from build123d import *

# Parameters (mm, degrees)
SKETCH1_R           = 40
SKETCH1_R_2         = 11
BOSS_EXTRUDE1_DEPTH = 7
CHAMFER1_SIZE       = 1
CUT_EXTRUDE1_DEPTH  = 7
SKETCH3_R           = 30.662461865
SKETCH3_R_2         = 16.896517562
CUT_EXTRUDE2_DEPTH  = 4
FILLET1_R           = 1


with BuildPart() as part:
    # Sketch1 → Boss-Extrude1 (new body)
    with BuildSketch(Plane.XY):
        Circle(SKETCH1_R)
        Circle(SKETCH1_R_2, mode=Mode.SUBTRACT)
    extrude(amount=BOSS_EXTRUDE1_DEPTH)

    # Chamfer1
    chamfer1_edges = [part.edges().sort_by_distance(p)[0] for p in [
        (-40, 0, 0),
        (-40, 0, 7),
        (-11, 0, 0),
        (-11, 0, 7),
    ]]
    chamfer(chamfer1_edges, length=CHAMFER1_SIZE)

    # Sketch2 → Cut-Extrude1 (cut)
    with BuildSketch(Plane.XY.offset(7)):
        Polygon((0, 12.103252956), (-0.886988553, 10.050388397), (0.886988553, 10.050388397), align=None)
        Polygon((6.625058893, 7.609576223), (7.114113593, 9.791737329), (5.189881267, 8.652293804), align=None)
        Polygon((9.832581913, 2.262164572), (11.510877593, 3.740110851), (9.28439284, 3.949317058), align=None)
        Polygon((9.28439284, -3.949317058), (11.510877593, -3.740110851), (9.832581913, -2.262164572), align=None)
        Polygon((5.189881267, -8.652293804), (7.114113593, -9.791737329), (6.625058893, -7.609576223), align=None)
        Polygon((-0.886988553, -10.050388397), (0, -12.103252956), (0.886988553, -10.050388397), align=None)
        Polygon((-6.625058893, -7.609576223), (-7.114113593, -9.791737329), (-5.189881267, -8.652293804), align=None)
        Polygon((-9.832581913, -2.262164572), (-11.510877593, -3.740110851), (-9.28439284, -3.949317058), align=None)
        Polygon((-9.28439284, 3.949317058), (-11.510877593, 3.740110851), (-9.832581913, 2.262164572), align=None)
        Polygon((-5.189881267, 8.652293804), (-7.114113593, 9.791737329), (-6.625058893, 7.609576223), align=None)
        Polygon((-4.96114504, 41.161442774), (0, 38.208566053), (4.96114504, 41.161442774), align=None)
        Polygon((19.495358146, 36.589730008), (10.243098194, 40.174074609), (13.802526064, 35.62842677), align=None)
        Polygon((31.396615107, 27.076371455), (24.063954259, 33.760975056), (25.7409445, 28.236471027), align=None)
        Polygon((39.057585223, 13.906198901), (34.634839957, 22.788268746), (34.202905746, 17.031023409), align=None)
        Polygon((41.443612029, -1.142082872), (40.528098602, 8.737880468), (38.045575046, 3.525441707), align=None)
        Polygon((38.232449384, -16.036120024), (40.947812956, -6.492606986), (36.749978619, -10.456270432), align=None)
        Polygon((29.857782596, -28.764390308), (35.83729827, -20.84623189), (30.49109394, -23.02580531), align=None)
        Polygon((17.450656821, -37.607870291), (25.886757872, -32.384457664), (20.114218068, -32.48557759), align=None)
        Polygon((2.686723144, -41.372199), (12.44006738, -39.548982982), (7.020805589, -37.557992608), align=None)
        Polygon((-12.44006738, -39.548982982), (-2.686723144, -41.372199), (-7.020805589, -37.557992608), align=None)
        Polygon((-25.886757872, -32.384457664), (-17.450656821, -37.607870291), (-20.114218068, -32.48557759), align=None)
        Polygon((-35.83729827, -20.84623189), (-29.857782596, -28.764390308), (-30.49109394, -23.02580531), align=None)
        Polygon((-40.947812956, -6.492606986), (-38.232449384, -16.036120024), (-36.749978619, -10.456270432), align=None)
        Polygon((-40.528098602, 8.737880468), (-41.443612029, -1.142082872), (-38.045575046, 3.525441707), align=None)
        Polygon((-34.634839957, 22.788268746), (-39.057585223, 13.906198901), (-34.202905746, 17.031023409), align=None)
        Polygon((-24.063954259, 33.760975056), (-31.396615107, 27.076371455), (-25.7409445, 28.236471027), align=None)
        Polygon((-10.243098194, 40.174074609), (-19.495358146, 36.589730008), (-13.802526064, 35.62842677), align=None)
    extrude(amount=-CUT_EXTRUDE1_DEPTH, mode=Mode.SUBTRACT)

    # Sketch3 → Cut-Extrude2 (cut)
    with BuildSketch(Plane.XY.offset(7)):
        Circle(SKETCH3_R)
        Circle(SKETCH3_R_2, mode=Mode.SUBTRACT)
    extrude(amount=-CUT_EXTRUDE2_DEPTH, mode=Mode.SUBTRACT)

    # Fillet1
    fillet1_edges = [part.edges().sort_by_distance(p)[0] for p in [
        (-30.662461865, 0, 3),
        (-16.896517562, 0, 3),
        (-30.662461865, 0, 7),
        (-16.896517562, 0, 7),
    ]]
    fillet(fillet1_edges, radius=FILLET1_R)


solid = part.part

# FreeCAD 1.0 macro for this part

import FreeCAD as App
import Part
import Sketcher
Q = App.Units.Quantity


def edges_at(feature, points):
    """Names of the edges that pass closest to the given points."""
    edges = feature.Shape.Edges
    near = lambda p: min(range(len(edges)), key=lambda i: edges[i].distToShape(Part.Vertex(*p))[0])
    return sorted({f"Edge{near(p) + 1}" for p in points})

doc = App.newDocument("Part")
body = doc.addObject("PartDesign::Body", "Body")

sketch1 = doc.addObject("Sketcher::SketchObject", "Sketch")
body.addObject(sketch1)
sketch1.AttachmentSupport = (doc.XY_Plane, [""])
sketch1.MapMode = "FlatFace"
sketch1.addGeometry(Part.Circle(App.Vector(0, 0, 0), App.Vector(0, 0, 1), 40), False)
sketch1.addGeometry(Part.Circle(App.Vector(0, 0, 0), App.Vector(0, 0, 1), 11), False)
sketch1.addConstraint(Sketcher.Constraint("Coincident", 0, 3, -1, 1))
sketch1.addConstraint(Sketcher.Constraint("Coincident", 1, 3, -1, 1))
sketch1.addConstraint(Sketcher.Constraint("Diameter", 0, 80.0))
sketch1.addConstraint(Sketcher.Constraint("Diameter", 1, 22.0))
pad1 = doc.addObject("PartDesign::Pad", "Pad")
body.addObject(pad1)
pad1.Profile = sketch1
pad1.Length = 7
doc.recompute()

chamfer = doc.addObject("PartDesign::Chamfer", "Chamfer")
body.addObject(chamfer)
chamfer.Base = (pad1, edges_at(pad1, [
    (-40, 0, 0),
    (-40, 0, 7),
    (-11, 0, 0),
    (-11, 0, 7),
]))
chamfer.Size = 1

sketch2 = doc.addObject("Sketcher::SketchObject", "Sketch001")
body.addObject(sketch2)
sketch2.AttachmentSupport = (doc.XY_Plane, [""])
sketch2.MapMode = "FlatFace"
sketch2.AttachmentOffset = App.Placement(App.Vector(0, 0, 7), App.Rotation())
sketch2.addGeometry(Part.LineSegment(App.Vector(0, 12.103253, 0), App.Vector(-0.886989, 10.050388, 0)), False)
sketch2.addGeometry(Part.LineSegment(App.Vector(-0.886989, 10.050388, 0), App.Vector(0.886989, 10.050388, 0)), False)
sketch2.addGeometry(Part.LineSegment(App.Vector(0.886989, 10.050388, 0), App.Vector(0, 12.103253, 0)), False)
sketch2.addGeometry(Part.LineSegment(App.Vector(6.625059, 7.609576, 0), App.Vector(7.114114, 9.791737, 0)), False)
sketch2.addGeometry(Part.LineSegment(App.Vector(7.114114, 9.791737, 0), App.Vector(5.189881, 8.652294, 0)), False)
sketch2.addGeometry(Part.LineSegment(App.Vector(5.189881, 8.652294, 0), App.Vector(6.625059, 7.609576, 0)), False)
sketch2.addGeometry(Part.LineSegment(App.Vector(9.832582, 2.262165, 0), App.Vector(11.510878, 3.740111, 0)), False)
sketch2.addGeometry(Part.LineSegment(App.Vector(11.510878, 3.740111, 0), App.Vector(9.284393, 3.949317, 0)), False)
sketch2.addGeometry(Part.LineSegment(App.Vector(9.284393, 3.949317, 0), App.Vector(9.832582, 2.262165, 0)), False)
sketch2.addGeometry(Part.LineSegment(App.Vector(9.284393, -3.949317, 0), App.Vector(11.510878, -3.740111, 0)), False)
sketch2.addGeometry(Part.LineSegment(App.Vector(11.510878, -3.740111, 0), App.Vector(9.832582, -2.262165, 0)), False)
sketch2.addGeometry(Part.LineSegment(App.Vector(9.832582, -2.262165, 0), App.Vector(9.284393, -3.949317, 0)), False)
sketch2.addGeometry(Part.LineSegment(App.Vector(5.189881, -8.652294, 0), App.Vector(7.114114, -9.791737, 0)), False)
sketch2.addGeometry(Part.LineSegment(App.Vector(7.114114, -9.791737, 0), App.Vector(6.625059, -7.609576, 0)), False)
sketch2.addGeometry(Part.LineSegment(App.Vector(6.625059, -7.609576, 0), App.Vector(5.189881, -8.652294, 0)), False)
sketch2.addGeometry(Part.LineSegment(App.Vector(-0.886989, -10.050388, 0), App.Vector(0, -12.103253, 0)), False)
sketch2.addGeometry(Part.LineSegment(App.Vector(0, -12.103253, 0), App.Vector(0.886989, -10.050388, 0)), False)
sketch2.addGeometry(Part.LineSegment(App.Vector(0.886989, -10.050388, 0), App.Vector(-0.886989, -10.050388, 0)), False)
sketch2.addGeometry(Part.LineSegment(App.Vector(-6.625059, -7.609576, 0), App.Vector(-7.114114, -9.791737, 0)), False)
sketch2.addGeometry(Part.LineSegment(App.Vector(-7.114114, -9.791737, 0), App.Vector(-5.189881, -8.652294, 0)), False)
sketch2.addGeometry(Part.LineSegment(App.Vector(-5.189881, -8.652294, 0), App.Vector(-6.625059, -7.609576, 0)), False)
sketch2.addGeometry(Part.LineSegment(App.Vector(-9.832582, -2.262165, 0), App.Vector(-11.510878, -3.740111, 0)), False)
sketch2.addGeometry(Part.LineSegment(App.Vector(-11.510878, -3.740111, 0), App.Vector(-9.284393, -3.949317, 0)), False)
sketch2.addGeometry(Part.LineSegment(App.Vector(-9.284393, -3.949317, 0), App.Vector(-9.832582, -2.262165, 0)), False)
sketch2.addGeometry(Part.LineSegment(App.Vector(-9.284393, 3.949317, 0), App.Vector(-11.510878, 3.740111, 0)), False)
sketch2.addGeometry(Part.LineSegment(App.Vector(-11.510878, 3.740111, 0), App.Vector(-9.832582, 2.262165, 0)), False)
sketch2.addGeometry(Part.LineSegment(App.Vector(-9.832582, 2.262165, 0), App.Vector(-9.284393, 3.949317, 0)), False)
sketch2.addGeometry(Part.LineSegment(App.Vector(-5.189881, 8.652294, 0), App.Vector(-7.114114, 9.791737, 0)), False)
sketch2.addGeometry(Part.LineSegment(App.Vector(-7.114114, 9.791737, 0), App.Vector(-6.625059, 7.609576, 0)), False)
sketch2.addGeometry(Part.LineSegment(App.Vector(-6.625059, 7.609576, 0), App.Vector(-5.189881, 8.652294, 0)), False)
sketch2.addGeometry(Part.LineSegment(App.Vector(-4.961145, 41.161443, 0), App.Vector(0, 38.208566, 0)), False)
sketch2.addGeometry(Part.LineSegment(App.Vector(0, 38.208566, 0), App.Vector(4.961145, 41.161443, 0)), False)
sketch2.addGeometry(Part.LineSegment(App.Vector(4.961145, 41.161443, 0), App.Vector(-4.961145, 41.161443, 0)), False)
sketch2.addGeometry(Part.LineSegment(App.Vector(19.495358, 36.58973, 0), App.Vector(10.243098, 40.174075, 0)), False)
sketch2.addGeometry(Part.LineSegment(App.Vector(10.243098, 40.174075, 0), App.Vector(13.802526, 35.628427, 0)), False)
sketch2.addGeometry(Part.LineSegment(App.Vector(13.802526, 35.628427, 0), App.Vector(19.495358, 36.58973, 0)), False)
sketch2.addGeometry(Part.LineSegment(App.Vector(31.396615, 27.076371, 0), App.Vector(24.063954, 33.760975, 0)), False)
sketch2.addGeometry(Part.LineSegment(App.Vector(24.063954, 33.760975, 0), App.Vector(25.740945, 28.236471, 0)), False)
sketch2.addGeometry(Part.LineSegment(App.Vector(25.740945, 28.236471, 0), App.Vector(31.396615, 27.076371, 0)), False)
sketch2.addGeometry(Part.LineSegment(App.Vector(39.057585, 13.906199, 0), App.Vector(34.63484, 22.788269, 0)), False)
sketch2.addGeometry(Part.LineSegment(App.Vector(34.63484, 22.788269, 0), App.Vector(34.202906, 17.031023, 0)), False)
sketch2.addGeometry(Part.LineSegment(App.Vector(34.202906, 17.031023, 0), App.Vector(39.057585, 13.906199, 0)), False)
sketch2.addGeometry(Part.LineSegment(App.Vector(41.443612, -1.142083, 0), App.Vector(40.528099, 8.73788, 0)), False)
sketch2.addGeometry(Part.LineSegment(App.Vector(40.528099, 8.73788, 0), App.Vector(38.045575, 3.525442, 0)), False)
sketch2.addGeometry(Part.LineSegment(App.Vector(38.045575, 3.525442, 0), App.Vector(41.443612, -1.142083, 0)), False)
sketch2.addGeometry(Part.LineSegment(App.Vector(38.232449, -16.03612, 0), App.Vector(40.947813, -6.492607, 0)), False)
sketch2.addGeometry(Part.LineSegment(App.Vector(40.947813, -6.492607, 0), App.Vector(36.749979, -10.45627, 0)), False)
sketch2.addGeometry(Part.LineSegment(App.Vector(36.749979, -10.45627, 0), App.Vector(38.232449, -16.03612, 0)), False)
sketch2.addGeometry(Part.LineSegment(App.Vector(29.857783, -28.76439, 0), App.Vector(35.837298, -20.846232, 0)), False)
sketch2.addGeometry(Part.LineSegment(App.Vector(35.837298, -20.846232, 0), App.Vector(30.491094, -23.025805, 0)), False)
sketch2.addGeometry(Part.LineSegment(App.Vector(30.491094, -23.025805, 0), App.Vector(29.857783, -28.76439, 0)), False)
sketch2.addGeometry(Part.LineSegment(App.Vector(17.450657, -37.60787, 0), App.Vector(25.886758, -32.384458, 0)), False)
sketch2.addGeometry(Part.LineSegment(App.Vector(25.886758, -32.384458, 0), App.Vector(20.114218, -32.485578, 0)), False)
sketch2.addGeometry(Part.LineSegment(App.Vector(20.114218, -32.485578, 0), App.Vector(17.450657, -37.60787, 0)), False)
sketch2.addGeometry(Part.LineSegment(App.Vector(2.686723, -41.372199, 0), App.Vector(12.440067, -39.548983, 0)), False)
sketch2.addGeometry(Part.LineSegment(App.Vector(12.440067, -39.548983, 0), App.Vector(7.020806, -37.557993, 0)), False)
sketch2.addGeometry(Part.LineSegment(App.Vector(7.020806, -37.557993, 0), App.Vector(2.686723, -41.372199, 0)), False)
sketch2.addGeometry(Part.LineSegment(App.Vector(-12.440067, -39.548983, 0), App.Vector(-2.686723, -41.372199, 0)), False)
sketch2.addGeometry(Part.LineSegment(App.Vector(-2.686723, -41.372199, 0), App.Vector(-7.020806, -37.557993, 0)), False)
sketch2.addGeometry(Part.LineSegment(App.Vector(-7.020806, -37.557993, 0), App.Vector(-12.440067, -39.548983, 0)), False)
sketch2.addGeometry(Part.LineSegment(App.Vector(-25.886758, -32.384458, 0), App.Vector(-17.450657, -37.60787, 0)), False)
sketch2.addGeometry(Part.LineSegment(App.Vector(-17.450657, -37.60787, 0), App.Vector(-20.114218, -32.485578, 0)), False)
sketch2.addGeometry(Part.LineSegment(App.Vector(-20.114218, -32.485578, 0), App.Vector(-25.886758, -32.384458, 0)), False)
sketch2.addGeometry(Part.LineSegment(App.Vector(-35.837298, -20.846232, 0), App.Vector(-29.857783, -28.76439, 0)), False)
sketch2.addGeometry(Part.LineSegment(App.Vector(-29.857783, -28.76439, 0), App.Vector(-30.491094, -23.025805, 0)), False)
sketch2.addGeometry(Part.LineSegment(App.Vector(-30.491094, -23.025805, 0), App.Vector(-35.837298, -20.846232, 0)), False)
sketch2.addGeometry(Part.LineSegment(App.Vector(-40.947813, -6.492607, 0), App.Vector(-38.232449, -16.03612, 0)), False)
sketch2.addGeometry(Part.LineSegment(App.Vector(-38.232449, -16.03612, 0), App.Vector(-36.749979, -10.45627, 0)), False)
sketch2.addGeometry(Part.LineSegment(App.Vector(-36.749979, -10.45627, 0), App.Vector(-40.947813, -6.492607, 0)), False)
sketch2.addGeometry(Part.LineSegment(App.Vector(-40.528099, 8.73788, 0), App.Vector(-41.443612, -1.142083, 0)), False)
sketch2.addGeometry(Part.LineSegment(App.Vector(-41.443612, -1.142083, 0), App.Vector(-38.045575, 3.525442, 0)), False)
sketch2.addGeometry(Part.LineSegment(App.Vector(-38.045575, 3.525442, 0), App.Vector(-40.528099, 8.73788, 0)), False)
sketch2.addGeometry(Part.LineSegment(App.Vector(-34.63484, 22.788269, 0), App.Vector(-39.057585, 13.906199, 0)), False)
sketch2.addGeometry(Part.LineSegment(App.Vector(-39.057585, 13.906199, 0), App.Vector(-34.202906, 17.031023, 0)), False)
sketch2.addGeometry(Part.LineSegment(App.Vector(-34.202906, 17.031023, 0), App.Vector(-34.63484, 22.788269, 0)), False)
sketch2.addGeometry(Part.LineSegment(App.Vector(-24.063954, 33.760975, 0), App.Vector(-31.396615, 27.076371, 0)), False)
sketch2.addGeometry(Part.LineSegment(App.Vector(-31.396615, 27.076371, 0), App.Vector(-25.740945, 28.236471, 0)), False)
sketch2.addGeometry(Part.LineSegment(App.Vector(-25.740945, 28.236471, 0), App.Vector(-24.063954, 33.760975, 0)), False)
sketch2.addGeometry(Part.LineSegment(App.Vector(-10.243098, 40.174075, 0), App.Vector(-19.495358, 36.58973, 0)), False)
sketch2.addGeometry(Part.LineSegment(App.Vector(-19.495358, 36.58973, 0), App.Vector(-13.802526, 35.628427, 0)), False)
sketch2.addGeometry(Part.LineSegment(App.Vector(-13.802526, 35.628427, 0), App.Vector(-10.243098, 40.174075, 0)), False)
sketch2.addConstraint(Sketcher.Constraint("Coincident", 0, 2, 1, 1))
sketch2.addConstraint(Sketcher.Constraint("Coincident", 1, 2, 2, 1))
sketch2.addConstraint(Sketcher.Constraint("Coincident", 2, 2, 0, 1))
sketch2.addConstraint(Sketcher.Constraint("Coincident", 3, 2, 4, 1))
sketch2.addConstraint(Sketcher.Constraint("Coincident", 4, 2, 5, 1))
sketch2.addConstraint(Sketcher.Constraint("Coincident", 5, 2, 3, 1))
sketch2.addConstraint(Sketcher.Constraint("Coincident", 6, 2, 7, 1))
sketch2.addConstraint(Sketcher.Constraint("Coincident", 7, 2, 8, 1))
sketch2.addConstraint(Sketcher.Constraint("Coincident", 8, 2, 6, 1))
sketch2.addConstraint(Sketcher.Constraint("Coincident", 9, 2, 10, 1))
sketch2.addConstraint(Sketcher.Constraint("Coincident", 10, 2, 11, 1))
sketch2.addConstraint(Sketcher.Constraint("Coincident", 11, 2, 9, 1))
sketch2.addConstraint(Sketcher.Constraint("Coincident", 12, 2, 13, 1))
sketch2.addConstraint(Sketcher.Constraint("Coincident", 13, 2, 14, 1))
sketch2.addConstraint(Sketcher.Constraint("Coincident", 14, 2, 12, 1))
sketch2.addConstraint(Sketcher.Constraint("Coincident", 15, 2, 16, 1))
sketch2.addConstraint(Sketcher.Constraint("Coincident", 16, 2, 17, 1))
sketch2.addConstraint(Sketcher.Constraint("Coincident", 17, 2, 15, 1))
sketch2.addConstraint(Sketcher.Constraint("Coincident", 18, 2, 19, 1))
sketch2.addConstraint(Sketcher.Constraint("Coincident", 19, 2, 20, 1))
sketch2.addConstraint(Sketcher.Constraint("Coincident", 20, 2, 18, 1))
sketch2.addConstraint(Sketcher.Constraint("Coincident", 21, 2, 22, 1))
sketch2.addConstraint(Sketcher.Constraint("Coincident", 22, 2, 23, 1))
sketch2.addConstraint(Sketcher.Constraint("Coincident", 23, 2, 21, 1))
sketch2.addConstraint(Sketcher.Constraint("Coincident", 24, 2, 25, 1))
sketch2.addConstraint(Sketcher.Constraint("Coincident", 25, 2, 26, 1))
sketch2.addConstraint(Sketcher.Constraint("Coincident", 26, 2, 24, 1))
sketch2.addConstraint(Sketcher.Constraint("Coincident", 27, 2, 28, 1))
sketch2.addConstraint(Sketcher.Constraint("Coincident", 28, 2, 29, 1))
sketch2.addConstraint(Sketcher.Constraint("Coincident", 29, 2, 27, 1))
sketch2.addConstraint(Sketcher.Constraint("Coincident", 30, 2, 31, 1))
sketch2.addConstraint(Sketcher.Constraint("Coincident", 31, 2, 32, 1))
sketch2.addConstraint(Sketcher.Constraint("Coincident", 32, 2, 30, 1))
sketch2.addConstraint(Sketcher.Constraint("Coincident", 33, 2, 34, 1))
sketch2.addConstraint(Sketcher.Constraint("Coincident", 34, 2, 35, 1))
sketch2.addConstraint(Sketcher.Constraint("Coincident", 35, 2, 33, 1))
sketch2.addConstraint(Sketcher.Constraint("Coincident", 36, 2, 37, 1))
sketch2.addConstraint(Sketcher.Constraint("Coincident", 37, 2, 38, 1))
sketch2.addConstraint(Sketcher.Constraint("Coincident", 38, 2, 36, 1))
sketch2.addConstraint(Sketcher.Constraint("Coincident", 39, 2, 40, 1))
sketch2.addConstraint(Sketcher.Constraint("Coincident", 40, 2, 41, 1))
sketch2.addConstraint(Sketcher.Constraint("Coincident", 41, 2, 39, 1))
sketch2.addConstraint(Sketcher.Constraint("Coincident", 42, 2, 43, 1))
sketch2.addConstraint(Sketcher.Constraint("Coincident", 43, 2, 44, 1))
sketch2.addConstraint(Sketcher.Constraint("Coincident", 44, 2, 42, 1))
sketch2.addConstraint(Sketcher.Constraint("Coincident", 45, 2, 46, 1))
sketch2.addConstraint(Sketcher.Constraint("Coincident", 46, 2, 47, 1))
sketch2.addConstraint(Sketcher.Constraint("Coincident", 47, 2, 45, 1))
sketch2.addConstraint(Sketcher.Constraint("Coincident", 48, 2, 49, 1))
sketch2.addConstraint(Sketcher.Constraint("Coincident", 49, 2, 50, 1))
sketch2.addConstraint(Sketcher.Constraint("Coincident", 50, 2, 48, 1))
sketch2.addConstraint(Sketcher.Constraint("Coincident", 51, 2, 52, 1))
sketch2.addConstraint(Sketcher.Constraint("Coincident", 52, 2, 53, 1))
sketch2.addConstraint(Sketcher.Constraint("Coincident", 53, 2, 51, 1))
sketch2.addConstraint(Sketcher.Constraint("Coincident", 54, 2, 55, 1))
sketch2.addConstraint(Sketcher.Constraint("Coincident", 55, 2, 56, 1))
sketch2.addConstraint(Sketcher.Constraint("Coincident", 56, 2, 54, 1))
sketch2.addConstraint(Sketcher.Constraint("Coincident", 57, 2, 58, 1))
sketch2.addConstraint(Sketcher.Constraint("Coincident", 58, 2, 59, 1))
sketch2.addConstraint(Sketcher.Constraint("Coincident", 59, 2, 57, 1))
sketch2.addConstraint(Sketcher.Constraint("Coincident", 60, 2, 61, 1))
sketch2.addConstraint(Sketcher.Constraint("Coincident", 61, 2, 62, 1))
sketch2.addConstraint(Sketcher.Constraint("Coincident", 62, 2, 60, 1))
sketch2.addConstraint(Sketcher.Constraint("Coincident", 63, 2, 64, 1))
sketch2.addConstraint(Sketcher.Constraint("Coincident", 64, 2, 65, 1))
sketch2.addConstraint(Sketcher.Constraint("Coincident", 65, 2, 63, 1))
sketch2.addConstraint(Sketcher.Constraint("Coincident", 66, 2, 67, 1))
sketch2.addConstraint(Sketcher.Constraint("Coincident", 67, 2, 68, 1))
sketch2.addConstraint(Sketcher.Constraint("Coincident", 68, 2, 66, 1))
sketch2.addConstraint(Sketcher.Constraint("Coincident", 69, 2, 70, 1))
sketch2.addConstraint(Sketcher.Constraint("Coincident", 70, 2, 71, 1))
sketch2.addConstraint(Sketcher.Constraint("Coincident", 71, 2, 69, 1))
sketch2.addConstraint(Sketcher.Constraint("Coincident", 72, 2, 73, 1))
sketch2.addConstraint(Sketcher.Constraint("Coincident", 73, 2, 74, 1))
sketch2.addConstraint(Sketcher.Constraint("Coincident", 74, 2, 72, 1))
sketch2.addConstraint(Sketcher.Constraint("Coincident", 75, 2, 76, 1))
sketch2.addConstraint(Sketcher.Constraint("Coincident", 76, 2, 77, 1))
sketch2.addConstraint(Sketcher.Constraint("Coincident", 77, 2, 75, 1))
sketch2.addConstraint(Sketcher.Constraint("Coincident", 78, 2, 79, 1))
sketch2.addConstraint(Sketcher.Constraint("Coincident", 79, 2, 80, 1))
sketch2.addConstraint(Sketcher.Constraint("Coincident", 80, 2, 78, 1))
sketch2.addConstraint(Sketcher.Constraint("Horizontal", 1))
sketch2.addConstraint(Sketcher.Constraint("Horizontal", 17))
sketch2.addConstraint(Sketcher.Constraint("Horizontal", 32))
sketch2.addConstraint(Sketcher.Constraint("Symmetric", 2, 2, 15, 2, -1, 1))
sketch2.addConstraint(Sketcher.Constraint("Symmetric", 0, 2, 16, 2, -1, 1))
sketch2.addConstraint(Sketcher.Constraint("Symmetric", 3, 2, 18, 2, -1, 1))
sketch2.addConstraint(Sketcher.Constraint("Symmetric", 4, 2, 19, 2, -1, 1))
sketch2.addConstraint(Sketcher.Constraint("Symmetric", 5, 2, 20, 2, -1, 1))
sketch2.addConstraint(Sketcher.Constraint("Symmetric", 6, 2, 21, 2, -1, 1))
sketch2.addConstraint(Sketcher.Constraint("Symmetric", 7, 2, 22, 2, -1, 1))
sketch2.addConstraint(Sketcher.Constraint("Symmetric", 8, 2, 23, 2, -1, 1))
sketch2.addConstraint(Sketcher.Constraint("Symmetric", 9, 2, 24, 2, -1, 1))
sketch2.addConstraint(Sketcher.Constraint("Symmetric", 10, 2, 25, 2, -1, 1))
sketch2.addConstraint(Sketcher.Constraint("Symmetric", 11, 2, 26, 2, -1, 1))
sketch2.addConstraint(Sketcher.Constraint("Symmetric", 12, 2, 27, 2, -1, 1))
sketch2.addConstraint(Sketcher.Constraint("Symmetric", 13, 2, 28, 2, -1, 1))
sketch2.addConstraint(Sketcher.Constraint("Symmetric", 14, 2, 29, 2, -1, 1))
sketch2.addConstraint(Sketcher.Constraint("Symmetric", 12, 2, 18, 2, -2))
sketch2.addConstraint(Sketcher.Constraint("Symmetric", 14, 2, 19, 2, -2))
sketch2.addConstraint(Sketcher.Constraint("Symmetric", 13, 2, 20, 2, -2))
sketch2.addConstraint(Sketcher.Constraint("Symmetric", 9, 2, 21, 2, -2))
sketch2.addConstraint(Sketcher.Constraint("Symmetric", 11, 2, 22, 2, -2))
sketch2.addConstraint(Sketcher.Constraint("Symmetric", 10, 2, 23, 2, -2))
sketch2.addConstraint(Sketcher.Constraint("Symmetric", 56, 2, 57, 2, -2))
sketch2.addConstraint(Sketcher.Constraint("Symmetric", 55, 2, 58, 2, -2))
sketch2.addConstraint(Sketcher.Constraint("Symmetric", 54, 2, 59, 2, -2))
sketch2.addConstraint(Sketcher.Constraint("Symmetric", 53, 2, 60, 2, -2))
sketch2.addConstraint(Sketcher.Constraint("Symmetric", 52, 2, 61, 2, -2))
sketch2.addConstraint(Sketcher.Constraint("Symmetric", 51, 2, 62, 2, -2))
sketch2.addConstraint(Sketcher.Constraint("Symmetric", 50, 2, 63, 2, -2))
sketch2.addConstraint(Sketcher.Constraint("Symmetric", 49, 2, 64, 2, -2))
sketch2.addConstraint(Sketcher.Constraint("Symmetric", 48, 2, 65, 2, -2))
sketch2.addConstraint(Sketcher.Constraint("Symmetric", 47, 2, 66, 2, -2))
sketch2.addConstraint(Sketcher.Constraint("Symmetric", 46, 2, 67, 2, -2))
sketch2.addConstraint(Sketcher.Constraint("Symmetric", 45, 2, 68, 2, -2))
sketch2.addConstraint(Sketcher.Constraint("Symmetric", 44, 2, 69, 2, -2))
sketch2.addConstraint(Sketcher.Constraint("Symmetric", 43, 2, 70, 2, -2))
sketch2.addConstraint(Sketcher.Constraint("Symmetric", 42, 2, 71, 2, -2))
sketch2.addConstraint(Sketcher.Constraint("Symmetric", 41, 2, 72, 2, -2))
sketch2.addConstraint(Sketcher.Constraint("Symmetric", 40, 2, 73, 2, -2))
sketch2.addConstraint(Sketcher.Constraint("Symmetric", 39, 2, 74, 2, -2))
sketch2.addConstraint(Sketcher.Constraint("Symmetric", 38, 2, 75, 2, -2))
sketch2.addConstraint(Sketcher.Constraint("Symmetric", 37, 2, 76, 2, -2))
sketch2.addConstraint(Sketcher.Constraint("Symmetric", 36, 2, 77, 2, -2))
sketch2.addConstraint(Sketcher.Constraint("Symmetric", 35, 2, 78, 2, -2))
sketch2.addConstraint(Sketcher.Constraint("Symmetric", 34, 2, 79, 2, -2))
sketch2.addConstraint(Sketcher.Constraint("Symmetric", 33, 2, 80, 2, -2))
sketch2.addConstraint(Sketcher.Constraint("PointOnObject", 2, 2, -2))
sketch2.addConstraint(Sketcher.Constraint("PointOnObject", 30, 2, -2))
sketch2.addConstraint(Sketcher.Constraint("Parallel", 2, 15))
sketch2.addConstraint(Sketcher.Constraint("Vertical", 1, 2, 16, 2))
sketch2.addConstraint(Sketcher.Constraint("Equal", 2, 3))
sketch2.addConstraint(Sketcher.Constraint("Equal", 3, 4))
sketch2.addConstraint(Sketcher.Constraint("Equal", 4, 6))
sketch2.addConstraint(Sketcher.Constraint("Equal", 6, 7))
sketch2.addConstraint(Sketcher.Constraint("Equal", 5, 8))
sketch2.addConstraint(Sketcher.Constraint("Equal", 30, 31))
sketch2.addConstraint(Sketcher.Constraint("Equal", 31, 34))
sketch2.addConstraint(Sketcher.Constraint("Equal", 34, 35))
sketch2.addConstraint(Sketcher.Constraint("Equal", 33, 36))
sketch2.addConstraint(Sketcher.Constraint("Equal", 35, 37))
sketch2.addConstraint(Sketcher.Constraint("Equal", 37, 38))
sketch2.addConstraint(Sketcher.Constraint("Equal", 36, 39))
sketch2.addConstraint(Sketcher.Constraint("Equal", 38, 40))
sketch2.addConstraint(Sketcher.Constraint("Equal", 40, 41))
sketch2.addConstraint(Sketcher.Constraint("Equal", 39, 42))
sketch2.addConstraint(Sketcher.Constraint("Equal", 41, 43))
sketch2.addConstraint(Sketcher.Constraint("Equal", 43, 44))
sketch2.addConstraint(Sketcher.Constraint("Equal", 42, 45))
sketch2.addConstraint(Sketcher.Constraint("Equal", 44, 46))
sketch2.addConstraint(Sketcher.Constraint("Equal", 46, 47))
sketch2.addConstraint(Sketcher.Constraint("Equal", 45, 48))
sketch2.addConstraint(Sketcher.Constraint("Equal", 47, 49))
sketch2.addConstraint(Sketcher.Constraint("Equal", 49, 50))
sketch2.addConstraint(Sketcher.Constraint("Equal", 48, 51))
sketch2.addConstraint(Sketcher.Constraint("Equal", 50, 52))
sketch2.addConstraint(Sketcher.Constraint("Equal", 52, 53))
sketch2.addConstraint(Sketcher.Constraint("Equal", 51, 54))
sketch2.addConstraint(Sketcher.Constraint("Equal", 53, 55))
sketch2.addConstraint(Sketcher.Constraint("Equal", 55, 56))
sketch2.addConstraint(Sketcher.Constraint("Angle", 5, Q("-36 deg")))
sketch2.addConstraint(Sketcher.Constraint("Angle", 8, Q("-72 deg")))
sketch2.addConstraint(Sketcher.Constraint("DistanceX", 32, 2, 32, 1, 9.92229))
sketch2.addConstraint(Sketcher.Constraint("DistanceX", -1, 1, 33, 2, 10.243098))
sketch2.addConstraint(Sketcher.Constraint("DistanceY", -1, 1, 41, 2, 13.906199))
sketch2.addConstraint(Sketcher.Constraint("DistanceX", -1, 1, 42, 2, 40.528099))
sketch2.addConstraint(Sketcher.Constraint("DistanceX", -1, 1, 48, 2, 35.837298))
sketch2.addConstraint(Sketcher.Constraint("DistanceY", 56, 2, -1, 1, 41.372199))
sketch2.addConstraint(Sketcher.Constraint("Distance", 0, 2.236292))
sketch2.addConstraint(Sketcher.Constraint("Distance", 33, 9.92229))
sketch2.addConstraint(Sketcher.Constraint("DistanceX", 1, 1, 1, 2, 1.773977))
sketch2.addConstraint(Sketcher.Constraint("DistanceY", -1, 1, 0, 2, 10.050388))
sketch2.addConstraint(Sketcher.Constraint("DistanceX", -1, 1, 4, 2, 5.189881))
sketch2.addConstraint(Sketcher.Constraint("DistanceX", -1, 1, 5, 2, 6.625059))
sketch2.addConstraint(Sketcher.Constraint("DistanceY", -1, 1, 6, 2, 3.740111))
sketch2.addConstraint(Sketcher.Constraint("DistanceX", -1, 1, 8, 2, 9.832582))
sketch2.addConstraint(Sketcher.Constraint("DistanceX", -1, 1, 35, 2, 19.495358))
sketch2.addConstraint(Sketcher.Constraint("DistanceY", -1, 1, 35, 2, 36.58973))
sketch2.addConstraint(Sketcher.Constraint("DistanceY", -1, 1, 37, 2, 28.236471))
sketch2.addConstraint(Sketcher.Constraint("DistanceY", -1, 1, 38, 2, 27.076371))
sketch2.addConstraint(Sketcher.Constraint("DistanceX", -1, 1, 39, 2, 34.63484))
sketch2.addConstraint(Sketcher.Constraint("DistanceY", -1, 1, 39, 2, 22.788269))
sketch2.addConstraint(Sketcher.Constraint("DistanceY", -1, 1, 42, 2, 8.73788))
sketch2.addConstraint(Sketcher.Constraint("DistanceY", -1, 1, 43, 2, 3.525442))
sketch2.addConstraint(Sketcher.Constraint("DistanceX", -1, 1, 46, 2, 36.749979))
sketch2.addConstraint(Sketcher.Constraint("DistanceY", 46, 2, -1, 1, 10.45627))
sketch2.addConstraint(Sketcher.Constraint("DistanceX", -1, 1, 47, 2, 38.232449))
sketch2.addConstraint(Sketcher.Constraint("DistanceY", 47, 2, -1, 1, 16.03612))
sketch2.addConstraint(Sketcher.Constraint("DistanceY", 48, 2, -1, 1, 20.846232))
sketch2.addConstraint(Sketcher.Constraint("DistanceY", 50, 2, -1, 1, 28.76439))
sketch2.addConstraint(Sketcher.Constraint("DistanceX", -1, 1, 52, 2, 20.114218))
sketch2.addConstraint(Sketcher.Constraint("DistanceY", 53, 2, -1, 1, 37.60787))
sketch2.addConstraint(Sketcher.Constraint("DistanceY", -1, 1, 3, 2, 9.791737))
sketch2.addConstraint(Sketcher.Constraint("DistanceY", -1, 1, 30, 2, 38.208566))
sketch2.addConstraint(Sketcher.Constraint("DistanceX", -1, 1, 36, 2, 24.063954))
sketch2.addConstraint(Sketcher.Constraint("DistanceX", -1, 1, 51, 2, 25.886758))
sketch2.addConstraint(Sketcher.Constraint("DistanceX", -1, 1, 54, 2, 12.440067))
sketch2.addConstraint(Sketcher.Constraint("DistanceY", 54, 2, -1, 1, 39.548983))
pocket1 = doc.addObject("PartDesign::Pocket", "Pocket")
body.addObject(pocket1)
pocket1.Profile = sketch2
pocket1.Length = 7

sketch3 = doc.addObject("Sketcher::SketchObject", "Sketch002")
body.addObject(sketch3)
sketch3.AttachmentSupport = (doc.XY_Plane, [""])
sketch3.MapMode = "FlatFace"
sketch3.AttachmentOffset = App.Placement(App.Vector(0, 0, 7), App.Rotation())
sketch3.addGeometry(Part.Circle(App.Vector(0, 0, 0), App.Vector(0, 0, 1), 30.662462), False)
sketch3.addGeometry(Part.Circle(App.Vector(0, 0, 0), App.Vector(0, 0, 1), 16.896518), False)
sketch3.addConstraint(Sketcher.Constraint("Coincident", 0, 3, -1, 1))
sketch3.addConstraint(Sketcher.Constraint("Coincident", 1, 3, -1, 1))
sketch3.addConstraint(Sketcher.Constraint("Diameter", 0, 61.324924))
sketch3.addConstraint(Sketcher.Constraint("Diameter", 1, 33.793035))
pocket2 = doc.addObject("PartDesign::Pocket", "Pocket001")
body.addObject(pocket2)
pocket2.Profile = sketch3
pocket2.Length = 4
doc.recompute()

fillet = doc.addObject("PartDesign::Fillet", "Fillet")
body.addObject(fillet)
fillet.Base = (pocket2, edges_at(pocket2, [
    (-30.662, 0, 3),
    (-16.897, 0, 3),
    (-30.662, 0, 7),
    (-16.897, 0, 7),
]))
fillet.Radius = 1

doc.recompute()
